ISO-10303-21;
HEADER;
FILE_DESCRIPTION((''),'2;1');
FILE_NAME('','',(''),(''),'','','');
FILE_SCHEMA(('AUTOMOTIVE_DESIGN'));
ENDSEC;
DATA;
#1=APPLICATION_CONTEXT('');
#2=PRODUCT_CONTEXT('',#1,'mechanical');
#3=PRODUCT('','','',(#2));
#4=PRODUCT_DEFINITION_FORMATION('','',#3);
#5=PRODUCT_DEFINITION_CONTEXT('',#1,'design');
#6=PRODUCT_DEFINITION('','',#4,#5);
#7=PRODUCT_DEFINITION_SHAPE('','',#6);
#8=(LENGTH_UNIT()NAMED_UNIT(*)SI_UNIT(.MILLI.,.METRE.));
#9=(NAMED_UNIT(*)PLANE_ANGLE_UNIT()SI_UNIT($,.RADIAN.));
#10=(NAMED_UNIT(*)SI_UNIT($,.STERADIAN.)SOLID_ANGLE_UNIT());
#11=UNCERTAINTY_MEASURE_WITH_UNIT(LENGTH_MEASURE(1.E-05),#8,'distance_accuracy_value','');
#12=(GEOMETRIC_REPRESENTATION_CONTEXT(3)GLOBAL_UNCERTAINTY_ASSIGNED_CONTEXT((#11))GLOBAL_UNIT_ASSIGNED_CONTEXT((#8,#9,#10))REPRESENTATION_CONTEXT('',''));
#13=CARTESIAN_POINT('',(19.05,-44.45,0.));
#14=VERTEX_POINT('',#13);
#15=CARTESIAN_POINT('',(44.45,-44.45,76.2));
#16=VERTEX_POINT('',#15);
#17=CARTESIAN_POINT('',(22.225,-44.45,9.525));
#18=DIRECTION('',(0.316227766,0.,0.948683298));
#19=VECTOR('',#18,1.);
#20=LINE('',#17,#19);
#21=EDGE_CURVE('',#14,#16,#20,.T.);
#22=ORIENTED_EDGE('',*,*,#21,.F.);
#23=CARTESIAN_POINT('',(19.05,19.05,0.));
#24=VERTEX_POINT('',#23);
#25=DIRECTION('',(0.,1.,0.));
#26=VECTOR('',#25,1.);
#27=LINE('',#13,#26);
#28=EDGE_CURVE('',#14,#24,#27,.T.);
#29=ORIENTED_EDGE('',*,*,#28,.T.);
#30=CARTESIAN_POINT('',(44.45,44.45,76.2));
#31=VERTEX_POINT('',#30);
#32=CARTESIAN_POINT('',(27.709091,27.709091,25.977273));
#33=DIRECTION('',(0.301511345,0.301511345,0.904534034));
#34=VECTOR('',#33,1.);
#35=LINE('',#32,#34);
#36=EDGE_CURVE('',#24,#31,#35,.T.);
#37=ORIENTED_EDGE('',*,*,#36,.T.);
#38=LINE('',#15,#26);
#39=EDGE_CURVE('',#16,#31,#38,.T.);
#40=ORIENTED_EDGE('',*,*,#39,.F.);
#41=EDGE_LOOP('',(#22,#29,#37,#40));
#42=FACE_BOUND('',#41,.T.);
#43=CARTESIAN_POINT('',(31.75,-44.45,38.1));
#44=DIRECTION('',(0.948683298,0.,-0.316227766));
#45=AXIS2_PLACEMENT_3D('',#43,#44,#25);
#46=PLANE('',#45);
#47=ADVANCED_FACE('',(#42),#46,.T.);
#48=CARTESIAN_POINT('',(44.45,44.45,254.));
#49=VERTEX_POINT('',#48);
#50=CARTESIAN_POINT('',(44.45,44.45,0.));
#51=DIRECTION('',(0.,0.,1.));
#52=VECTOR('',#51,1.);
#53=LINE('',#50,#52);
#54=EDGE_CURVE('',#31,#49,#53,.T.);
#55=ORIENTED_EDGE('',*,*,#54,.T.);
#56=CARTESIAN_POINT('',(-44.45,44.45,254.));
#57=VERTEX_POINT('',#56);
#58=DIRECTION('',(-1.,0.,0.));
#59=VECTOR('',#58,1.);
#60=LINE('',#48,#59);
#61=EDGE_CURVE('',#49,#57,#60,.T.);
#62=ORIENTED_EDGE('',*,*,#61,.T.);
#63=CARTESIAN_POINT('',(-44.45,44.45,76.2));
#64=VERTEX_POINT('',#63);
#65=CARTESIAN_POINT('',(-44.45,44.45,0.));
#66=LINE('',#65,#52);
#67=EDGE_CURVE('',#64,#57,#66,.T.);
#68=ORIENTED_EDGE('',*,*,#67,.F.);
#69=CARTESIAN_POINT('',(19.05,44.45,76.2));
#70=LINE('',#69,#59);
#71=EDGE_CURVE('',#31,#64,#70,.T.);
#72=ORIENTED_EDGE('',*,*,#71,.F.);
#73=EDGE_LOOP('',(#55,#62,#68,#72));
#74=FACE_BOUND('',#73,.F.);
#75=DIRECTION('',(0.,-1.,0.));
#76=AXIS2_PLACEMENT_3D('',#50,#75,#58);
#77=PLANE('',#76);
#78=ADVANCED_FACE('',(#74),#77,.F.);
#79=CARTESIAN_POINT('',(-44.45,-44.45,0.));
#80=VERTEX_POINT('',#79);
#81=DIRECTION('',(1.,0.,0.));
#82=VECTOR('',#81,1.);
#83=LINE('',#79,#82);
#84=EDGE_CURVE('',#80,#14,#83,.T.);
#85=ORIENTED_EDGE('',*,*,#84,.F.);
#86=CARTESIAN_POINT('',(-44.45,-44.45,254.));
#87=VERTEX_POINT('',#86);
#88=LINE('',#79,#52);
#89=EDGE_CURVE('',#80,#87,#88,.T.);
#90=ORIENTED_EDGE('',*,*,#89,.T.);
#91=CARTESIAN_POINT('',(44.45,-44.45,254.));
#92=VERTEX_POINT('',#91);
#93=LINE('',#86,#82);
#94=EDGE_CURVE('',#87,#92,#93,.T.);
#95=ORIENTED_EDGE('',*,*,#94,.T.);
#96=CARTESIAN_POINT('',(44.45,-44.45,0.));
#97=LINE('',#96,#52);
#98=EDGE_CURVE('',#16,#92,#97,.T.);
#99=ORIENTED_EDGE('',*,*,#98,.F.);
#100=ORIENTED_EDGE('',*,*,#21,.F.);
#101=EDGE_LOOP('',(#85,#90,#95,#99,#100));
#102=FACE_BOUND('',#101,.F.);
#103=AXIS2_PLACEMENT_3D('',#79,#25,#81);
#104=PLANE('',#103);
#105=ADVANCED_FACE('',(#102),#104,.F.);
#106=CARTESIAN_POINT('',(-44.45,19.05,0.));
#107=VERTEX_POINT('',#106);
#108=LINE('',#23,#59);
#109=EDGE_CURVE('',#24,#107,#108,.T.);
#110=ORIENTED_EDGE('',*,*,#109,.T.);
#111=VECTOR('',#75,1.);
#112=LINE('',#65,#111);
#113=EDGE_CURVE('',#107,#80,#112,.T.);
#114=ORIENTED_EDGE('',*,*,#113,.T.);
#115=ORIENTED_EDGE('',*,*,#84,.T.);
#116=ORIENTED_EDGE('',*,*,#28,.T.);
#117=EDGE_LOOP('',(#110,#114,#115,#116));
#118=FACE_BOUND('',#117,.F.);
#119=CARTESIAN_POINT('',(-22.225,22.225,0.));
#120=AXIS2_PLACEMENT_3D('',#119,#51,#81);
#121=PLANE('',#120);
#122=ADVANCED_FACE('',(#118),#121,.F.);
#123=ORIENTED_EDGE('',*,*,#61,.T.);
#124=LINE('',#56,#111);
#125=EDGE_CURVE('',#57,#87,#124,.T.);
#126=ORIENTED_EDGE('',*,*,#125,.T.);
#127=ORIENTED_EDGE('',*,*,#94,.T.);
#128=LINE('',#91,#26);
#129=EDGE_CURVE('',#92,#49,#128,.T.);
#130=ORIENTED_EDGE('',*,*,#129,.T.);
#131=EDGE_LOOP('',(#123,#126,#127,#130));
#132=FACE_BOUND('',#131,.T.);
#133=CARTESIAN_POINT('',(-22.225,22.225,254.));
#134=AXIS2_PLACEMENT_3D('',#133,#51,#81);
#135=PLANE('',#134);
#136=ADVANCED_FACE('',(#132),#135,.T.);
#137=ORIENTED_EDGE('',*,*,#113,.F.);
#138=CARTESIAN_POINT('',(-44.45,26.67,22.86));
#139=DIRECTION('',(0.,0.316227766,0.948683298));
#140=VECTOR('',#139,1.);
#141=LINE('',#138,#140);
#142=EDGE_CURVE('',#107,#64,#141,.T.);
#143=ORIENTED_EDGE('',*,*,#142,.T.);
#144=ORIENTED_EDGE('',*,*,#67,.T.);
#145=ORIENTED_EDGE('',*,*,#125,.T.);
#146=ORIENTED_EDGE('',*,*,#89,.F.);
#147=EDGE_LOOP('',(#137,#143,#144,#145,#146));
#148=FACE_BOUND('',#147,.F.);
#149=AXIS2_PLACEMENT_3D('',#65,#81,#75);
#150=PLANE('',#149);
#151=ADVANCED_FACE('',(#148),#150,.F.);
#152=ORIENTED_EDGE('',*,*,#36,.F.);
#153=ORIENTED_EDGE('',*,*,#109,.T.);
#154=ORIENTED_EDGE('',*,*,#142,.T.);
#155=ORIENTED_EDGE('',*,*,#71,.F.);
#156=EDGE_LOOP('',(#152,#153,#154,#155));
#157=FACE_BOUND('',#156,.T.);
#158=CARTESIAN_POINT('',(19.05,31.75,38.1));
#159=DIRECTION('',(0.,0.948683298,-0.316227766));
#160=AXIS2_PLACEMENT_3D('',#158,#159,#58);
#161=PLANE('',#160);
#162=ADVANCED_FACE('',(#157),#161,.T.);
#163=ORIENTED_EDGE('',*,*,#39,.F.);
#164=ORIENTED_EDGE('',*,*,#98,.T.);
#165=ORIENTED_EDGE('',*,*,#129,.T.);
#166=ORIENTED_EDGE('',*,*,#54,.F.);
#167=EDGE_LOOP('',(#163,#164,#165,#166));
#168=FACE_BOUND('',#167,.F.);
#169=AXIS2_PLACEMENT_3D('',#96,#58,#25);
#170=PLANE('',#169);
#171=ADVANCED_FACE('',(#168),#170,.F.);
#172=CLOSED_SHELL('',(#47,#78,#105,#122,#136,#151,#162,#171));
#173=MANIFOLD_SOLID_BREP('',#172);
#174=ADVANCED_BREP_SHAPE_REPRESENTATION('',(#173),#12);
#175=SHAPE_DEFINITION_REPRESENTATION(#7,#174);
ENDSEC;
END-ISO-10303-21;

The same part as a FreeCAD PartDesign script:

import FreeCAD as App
import Part
import Sketcher
from FreeCAD import Vector
Q = App.Units.Quantity


def edges_at(feature, points):
    """Names of the edges that pass closest to the given points."""
    edges = feature.Shape.Edges
    near = lambda p: min(range(len(edges)), key=lambda i: edges[i].distToShape(Part.Vertex(*p))[0])
    return sorted({f"Edge{near(p) + 1}" for p in points})

doc = App.newDocument("Part")
body = doc.addObject("PartDesign::Body", "Body")

sketch1 = body.newObject("Sketcher::SketchObject", "Sketch")
sketch1.AttachmentSupport = (doc.getObject("XY_Plane"), [""])
sketch1.MapMode = "FlatFace"
sketch1.addGeometry(Part.LineSegment(Vector(-44, 44, 0), Vector(-44, -44, 0)), False)
sketch1.addGeometry(Part.LineSegment(Vector(-44, -44, 0), Vector(44, -44, 0)), False)
sketch1.addGeometry(Part.LineSegment(Vector(44, -44, 0), Vector(44, 44, 0)), False)
sketch1.addGeometry(Part.LineSegment(Vector(44, 44, 0), Vector(-44, 44, 0)), False)
sketch1.addConstraint(Sketcher.Constraint("Coincident", 0, 2, 1, 1))
sketch1.addConstraint(Sketcher.Constraint("Coincident", 1, 2, 2, 1))
sketch1.addConstraint(Sketcher.Constraint("Coincident", 2, 2, 3, 1))
sketch1.addConstraint(Sketcher.Constraint("Coincident", 3, 2, 0, 1))
sketch1.addConstraint(Sketcher.Constraint("Vertical", 0))
sketch1.addConstraint(Sketcher.Constraint("Horizontal", 1))
sketch1.addConstraint(Sketcher.Constraint("Vertical", 2))
sketch1.addConstraint(Sketcher.Constraint("Horizontal", 3))
sketch1.addConstraint(Sketcher.Constraint("Symmetric", 0, 2, 2, 2, -1, 1))
sketch1.addConstraint(Sketcher.Constraint("Equal", 3, 0))
sketch1.addConstraint(Sketcher.Constraint("DistanceX", 1, 1, 1, 2, Q("3.5 in")))
pad1 = body.newObject("PartDesign::Pad", "Pad")
pad1.Profile = sketch1
pad1.Length = Q("10 in")
doc.recompute()

chamfer = body.newObject("PartDesign::Chamfer", "Chamfer")
chamfer.Base = (pad1, edges_at(pad1, [(44.45, 0, 0)]))
chamfer.ChamferType = "Two distances"
chamfer.Size = Q("1 in")
chamfer.Size2 = Q("3 in")
chamfer.FlipDirection = True
doc.recompute()

chamfer2 = body.newObject("PartDesign::Chamfer", "Chamfer001")
chamfer2.Base = (chamfer, edges_at(chamfer, [(-12.7, 44.45, 0)]))
chamfer2.ChamferType = "Two distances"
chamfer2.Size = Q("1 in")
chamfer2.Size2 = Q("3 in")

doc.recompute()
